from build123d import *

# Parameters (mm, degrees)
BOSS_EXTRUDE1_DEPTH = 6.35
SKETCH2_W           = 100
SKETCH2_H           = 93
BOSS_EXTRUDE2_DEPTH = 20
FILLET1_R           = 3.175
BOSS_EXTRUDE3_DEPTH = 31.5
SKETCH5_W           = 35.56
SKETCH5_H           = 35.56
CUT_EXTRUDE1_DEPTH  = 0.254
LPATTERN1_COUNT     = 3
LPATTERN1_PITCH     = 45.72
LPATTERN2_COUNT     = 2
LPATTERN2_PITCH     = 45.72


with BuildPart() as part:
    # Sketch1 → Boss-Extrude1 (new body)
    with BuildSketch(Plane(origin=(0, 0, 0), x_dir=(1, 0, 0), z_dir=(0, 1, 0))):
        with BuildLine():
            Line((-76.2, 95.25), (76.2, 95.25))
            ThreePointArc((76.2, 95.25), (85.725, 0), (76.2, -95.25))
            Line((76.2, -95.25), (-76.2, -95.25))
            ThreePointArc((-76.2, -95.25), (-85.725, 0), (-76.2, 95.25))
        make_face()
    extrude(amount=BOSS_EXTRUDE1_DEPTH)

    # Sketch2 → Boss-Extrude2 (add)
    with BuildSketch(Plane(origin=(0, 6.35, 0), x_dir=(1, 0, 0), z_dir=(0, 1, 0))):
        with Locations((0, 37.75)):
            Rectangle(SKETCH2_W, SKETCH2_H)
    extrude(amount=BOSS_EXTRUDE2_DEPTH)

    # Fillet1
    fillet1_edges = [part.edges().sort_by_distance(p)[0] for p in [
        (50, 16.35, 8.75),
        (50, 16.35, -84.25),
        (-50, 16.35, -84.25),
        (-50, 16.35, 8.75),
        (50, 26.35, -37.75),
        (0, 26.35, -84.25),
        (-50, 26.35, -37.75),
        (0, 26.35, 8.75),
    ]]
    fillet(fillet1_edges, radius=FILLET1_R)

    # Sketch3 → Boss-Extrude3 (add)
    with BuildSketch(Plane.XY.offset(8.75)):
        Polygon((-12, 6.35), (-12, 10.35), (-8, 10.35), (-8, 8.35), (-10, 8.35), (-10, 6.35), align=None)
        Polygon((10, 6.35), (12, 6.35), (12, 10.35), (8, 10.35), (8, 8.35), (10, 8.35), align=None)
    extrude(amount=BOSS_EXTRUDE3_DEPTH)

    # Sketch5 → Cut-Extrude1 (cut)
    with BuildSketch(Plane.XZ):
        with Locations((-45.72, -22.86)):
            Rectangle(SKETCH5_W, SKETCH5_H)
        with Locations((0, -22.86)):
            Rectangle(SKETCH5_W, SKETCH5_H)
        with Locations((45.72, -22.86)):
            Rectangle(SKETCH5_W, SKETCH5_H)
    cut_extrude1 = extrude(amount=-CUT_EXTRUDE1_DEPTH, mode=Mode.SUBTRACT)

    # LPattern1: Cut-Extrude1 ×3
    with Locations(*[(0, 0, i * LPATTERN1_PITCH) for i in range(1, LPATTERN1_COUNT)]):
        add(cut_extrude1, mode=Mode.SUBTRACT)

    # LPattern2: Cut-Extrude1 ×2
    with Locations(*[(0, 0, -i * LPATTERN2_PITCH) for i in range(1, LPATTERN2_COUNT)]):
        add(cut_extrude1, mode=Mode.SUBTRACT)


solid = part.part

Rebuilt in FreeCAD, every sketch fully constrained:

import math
import FreeCAD as App
import Part
import Sketcher
Q = App.Units.Quantity


def edges_at(feature, points):
    """Names of the edges that pass closest to the given points."""
    edges = feature.Shape.Edges
    near = lambda p: min(range(len(edges)), key=lambda i: edges[i].distToShape(Part.Vertex(*p))[0])
    return sorted({f"Edge{near(p) + 1}" for p in points})


def add_polygon(sketch, points):
    """Adds a closed chain of lines whose ends are joined by coincident constraints."""
    first, n = sketch.GeometryCount, len(points)
    for a, b in zip(points, points[1:] + points[:1]):
        sketch.addGeometry(Part.LineSegment(App.Vector(*a, 0), App.Vector(*b, 0)), False)
    for i in range(n):
        sketch.addConstraint(Sketcher.Constraint("Coincident", first + i, 2, first + (i + 1) % n, 1))

doc = App.newDocument("Part")
params = doc.addObject("Spreadsheet::Sheet", "Params")
for row, (alias, value) in enumerate([
    ("sketch1_width", "152.4 mm"),
    ("pad1_length", "6.35 mm"),
    ("sketch2_width", "100 mm"),
    ("sketch2_height", "93 mm"),
    ("pad2_length", "20 mm"),
    ("fillet_radius", "3.175 mm"),
    ("sketch3_width", "2 mm"),
    ("pad3_length", "31.5 mm"),
    ("sketch4_width", "35.56 mm"),
    ("pocket1_length", "0.254 mm"),
    ("linearpattern_pitch", "45.72 mm"),
    ("linearpattern2_pitch", "45.72 mm"),
], start=1):
    params.set(f"A{row}", alias)
    params.set(f"B{row}", "=" + value)
    params.setAlias(f"B{row}", alias)

body = doc.addObject("PartDesign::Body", "Body")

# Sketch on XZ plane
sketch1 = doc.addObject("Sketcher::SketchObject", "Sketch")
body.addObject(sketch1)
sketch1.AttachmentSupport = (doc.XZ_Plane, [""])
sketch1.MapMode = "FlatFace"
sketch1.addGeometry([
    Part.LineSegment(App.Vector(76, -95, 0), App.Vector(-76, -95, 0)),
    Part.ArcOfCircle(Part.Circle(App.Vector(395, 0, 0), App.Vector(0, 0, 1), 481), math.radians(169), math.radians(191)),
    Part.LineSegment(App.Vector(-76, 95, 0), App.Vector(76, 95, 0)),
    Part.ArcOfCircle(Part.Circle(App.Vector(-395, 0, 0), App.Vector(0, 0, 1), 481), math.radians(-11), math.radians(11)),
], False)
sketch1.addConstraint([
    Sketcher.Constraint("Coincident", 0, 2, 1, 2),
    Sketcher.Constraint("Coincident", 1, 1, 2, 1),
    Sketcher.Constraint("Coincident", 2, 2, 3, 2),
    Sketcher.Constraint("Coincident", 3, 1, 0, 1),
    Sketcher.Constraint("Horizontal", 0),
    Sketcher.Constraint("Horizontal", 2),
    Sketcher.Constraint("Equal", 1, 3),
    Sketcher.Constraint("Symmetric", 1, 3, 3, 3, -1, 1),
    Sketcher.Constraint("PointOnObject", 1, 3, -1),
    Sketcher.Constraint("Vertical", 0, 2, 1, 1),
    Sketcher.Constraint("DistanceX", 0, 2, 0, 1, Q("152.4 mm")),
    Sketcher.Constraint("Radius", 1, Q("481.0125 mm")),
    Sketcher.Constraint("DistanceY", 0, 2, 1, 1, Q("190.5 mm")),
])
sketch1.setExpression("Constraints[10]", "Params.sketch1_width")
pad1 = doc.addObject("PartDesign::Pad", "Pad")
body.addObject(pad1)
pad1.Profile = sketch1
pad1.setExpression("Length", "Params.pad1_length")
pad1.Reversed = True

# Sketch on XZ plane
sketch2 = doc.addObject("Sketcher::SketchObject", "Sketch001")
body.addObject(sketch2)
sketch2.AttachmentSupport = (doc.XZ_Plane, [""])
sketch2.MapMode = "FlatFace"
sketch2.AttachmentOffset = App.Placement(App.Vector(0, 0, -6.35), App.Rotation())
add_polygon(sketch2, [(-50, -84), (-50, 9), (50, 9), (50, -84)])  # lines 0-3
sketch2.addConstraint([
    Sketcher.Constraint("Vertical", 0),
    Sketcher.Constraint("Horizontal", 1),
    Sketcher.Constraint("Vertical", 2),
    Sketcher.Constraint("Horizontal", 3),
    Sketcher.Constraint("DistanceX", 1, 1, 1, 2, Q("100 mm")),
    Sketcher.Constraint("DistanceY", 0, 1, 0, 2, Q("93 mm")),
    Sketcher.Constraint("DistanceX", 0, 2, -1, 1, Q("50 mm")),
    Sketcher.Constraint("DistanceY", -1, 1, 0, 2, Q("8.75 mm")),
])
sketch2.setExpression("Constraints[8]", "Params.sketch2_width")
sketch2.setExpression("Constraints[9]", "Params.sketch2_height")
pad2 = doc.addObject("PartDesign::Pad", "Pad001")
body.addObject(pad2)
pad2.Profile = sketch2
pad2.setExpression("Length", "Params.pad2_length")
pad2.Reversed = True
doc.recompute()

fillet = doc.addObject("PartDesign::Fillet", "Fillet")
body.addObject(fillet)
fillet.Base = (pad2, edges_at(pad2, [
    (50, 16.35, 8.75),
    (50, 16.35, -84.25),
    (-50, 16.35, -84.25),
    (-50, 16.35, 8.75),
    (50, 26.35, -37.75),
    (0, 26.35, -84.25),
    (-50, 26.35, -37.75),
    (0, 26.35, 8.75),
]))
fillet.setExpression("Radius", "Params.fillet_radius")

# Sketch on XY plane
sketch3 = doc.addObject("Sketcher::SketchObject", "Sketch002")
body.addObject(sketch3)
sketch3.AttachmentSupport = (doc.XY_Plane, [""])
sketch3.MapMode = "FlatFace"
sketch3.AttachmentOffset = App.Placement(App.Vector(0, 0, 8.75), App.Rotation())
add_polygon(sketch3, [(-12, 10.3), (-12, 6.3), (-10, 6.3), (-10, 8.3), (-8, 8.3), (-8, 10.3)])  # lines 0-5
add_polygon(sketch3, [(10, 6.3), (12, 6.3), (12, 10.3), (8, 10.3), (8, 8.3), (10, 8.3)])  # lines 6-11
sketch3.addConstraint([
    Sketcher.Constraint("Vertical", 0),
    Sketcher.Constraint("Horizontal", 1),
    Sketcher.Constraint("Vertical", 2),
    Sketcher.Constraint("Horizontal", 3),
    Sketcher.Constraint("Vertical", 4),
    Sketcher.Constraint("Horizontal", 5),
    Sketcher.Constraint("Horizontal", 6),
    Sketcher.Constraint("Vertical", 7),
    Sketcher.Constraint("Horizontal", 8),
    Sketcher.Constraint("Vertical", 9),
    Sketcher.Constraint("Horizontal", 10),
    Sketcher.Constraint("Vertical", 11),
    Sketcher.Constraint("Symmetric", 0, 2, 6, 2, -2),
    Sketcher.Constraint("Symmetric", 4, 2, 8, 2, -2),
    Sketcher.Constraint("Symmetric", 2, 2, 10, 2, -2),
    Sketcher.Constraint("Equal", 1, 3),
    Sketcher.Constraint("Equal", 8, 0),
    Sketcher.Constraint("Equal", 10, 2),
    Sketcher.Constraint("DistanceX", 1, 1, 1, 2, Q("2 mm")),
    Sketcher.Constraint("DistanceX", 0, 2, -1, 1, Q("12 mm")),
    Sketcher.Constraint("DistanceY", -1, 1, 0, 2, Q("6.35 mm")),
])
sketch3.setExpression("Constraints[30]", "Params.sketch3_width")
pad3 = doc.addObject("PartDesign::Pad", "Pad002")
body.addObject(pad3)
pad3.Profile = sketch3
pad3.setExpression("Length", "Params.pad3_length")

# Sketch on XZ plane
sketch4 = doc.addObject("Sketcher::SketchObject", "Sketch003")
body.addObject(sketch4)
sketch4.AttachmentSupport = (doc.XZ_Plane, [""])
sketch4.MapMode = "FlatFace"
add_polygon(sketch4, [(-64, -5), (-64, -41), (-28, -41), (-28, -5)])  # lines 0-3
add_polygon(sketch4, [(-18, -5), (-18, -41), (18, -41), (18, -5)])  # lines 4-7
add_polygon(sketch4, [(28, -5), (28, -41), (64, -41), (64, -5)])  # lines 8-11
sketch4.addConstraint([
    Sketcher.Constraint("Vertical", 0),
    Sketcher.Constraint("Horizontal", 1),
    Sketcher.Constraint("Vertical", 2),
    Sketcher.Constraint("Horizontal", 3),
    Sketcher.Constraint("Vertical", 4),
    Sketcher.Constraint("Horizontal", 5),
    Sketcher.Constraint("Vertical", 6),
    Sketcher.Constraint("Horizontal", 7),
    Sketcher.Constraint("Vertical", 8),
    Sketcher.Constraint("Horizontal", 9),
    Sketcher.Constraint("Vertical", 10),
    Sketcher.Constraint("Horizontal", 11),
    Sketcher.Constraint("Symmetric", 1, 2, 8, 2, -2),
    Sketcher.Constraint("Symmetric", 3, 2, 10, 2, -2),
    Sketcher.Constraint("Horizontal", 1, 2, 4, 2),
    Sketcher.Constraint("Horizontal", 3, 2, 6, 2),
    Sketcher.Constraint("Equal", 3, 5),
    Sketcher.Constraint("Equal", 11, 0),
    Sketcher.Constraint("DistanceX", 1, 1, 1, 2, Q("35.56 mm")),
    Sketcher.Constraint("DistanceX", 0, 2, -1, 1, Q("63.5 mm")),
    Sketcher.Constraint("DistanceY", 0, 2, -1, 1, Q("40.64 mm")),
    Sketcher.Constraint("DistanceX", 4, 2, -1, 1, Q("17.78 mm")),
])
sketch4.setExpression("Constraints[30]", "Params.sketch4_width")
pocket1 = doc.addObject("PartDesign::Pocket", "Pocket")
body.addObject(pocket1)
pocket1.Profile = sketch4
pocket1.setExpression("Length", "Params.pocket1_length")
doc.recompute()

linearpattern = doc.addObject("PartDesign::LinearPattern", "LinearPattern")
body.addObject(linearpattern)
linearpattern.Originals = [pocket1]
linearpattern.Direction = (doc.Z_Axis, [""])
linearpattern.Mode = "offset"
linearpattern.setExpression("Offset", "Params.linearpattern_pitch")
linearpattern.Occurrences = 3
body.Tip = linearpattern
doc.recompute()

linearpattern2 = doc.addObject("PartDesign::LinearPattern", "LinearPattern001")
body.addObject(linearpattern2)
linearpattern2.Originals = [pocket1]
linearpattern2.Direction = (doc.Z_Axis, [""])
linearpattern2.Mode = "offset"
linearpattern2.setExpression("Offset", "Params.linearpattern2_pitch")
linearpattern2.Occurrences = 2
linearpattern2.Reversed = True
body.Tip = linearpattern2

doc.recompute()
